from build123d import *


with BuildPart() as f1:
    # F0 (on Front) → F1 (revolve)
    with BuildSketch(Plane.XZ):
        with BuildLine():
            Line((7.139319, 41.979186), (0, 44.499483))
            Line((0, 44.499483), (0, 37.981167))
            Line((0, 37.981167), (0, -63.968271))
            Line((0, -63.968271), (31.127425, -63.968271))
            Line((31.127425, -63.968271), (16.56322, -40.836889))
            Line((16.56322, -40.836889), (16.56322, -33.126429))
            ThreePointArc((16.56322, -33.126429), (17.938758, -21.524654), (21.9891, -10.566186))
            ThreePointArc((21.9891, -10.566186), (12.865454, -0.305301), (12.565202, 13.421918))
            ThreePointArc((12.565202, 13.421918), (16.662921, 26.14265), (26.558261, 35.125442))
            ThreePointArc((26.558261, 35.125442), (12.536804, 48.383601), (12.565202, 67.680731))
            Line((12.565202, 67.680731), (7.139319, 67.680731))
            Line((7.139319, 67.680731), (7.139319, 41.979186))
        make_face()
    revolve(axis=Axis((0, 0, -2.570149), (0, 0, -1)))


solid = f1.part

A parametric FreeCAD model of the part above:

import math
import FreeCAD as App
import Part
import Sketcher
Q = App.Units.Quantity

doc = App.newDocument("Part")
body = doc.addObject("PartDesign::Body", "Body")

sketch1 = body.newObject("Sketcher::SketchObject", "Sketch")
sketch1.AttachmentSupport = (doc.getObject("XZ_Plane"), [""])
sketch1.MapMode = "FlatFace"
sketch1.addGeometry([
    Part.LineSegment(App.Vector(7, 42, 0), App.Vector(0, 44, 0)),
    Part.LineSegment(App.Vector(0, 44, 0), App.Vector(0, -64, 0)),
    Part.LineSegment(App.Vector(0, -64, 0), App.Vector(31, -64, 0)),
    Part.LineSegment(App.Vector(31, -64, 0), App.Vector(17, -41, 0)),
    Part.LineSegment(App.Vector(17, -41, 0), App.Vector(17, -33, 0)),
    Part.ArcOfCircle(Part.Circle(App.Vector(66, -33, 0), App.Vector(0, 0, 1), 50), math.radians(153), math.radians(180)),
    Part.ArcOfCircle(Part.Circle(App.Vector(31, 7, 0), App.Vector(0, 0, 1), 20), math.radians(161), math.radians(242)),
    Part.ArcOfCircle(Part.Circle(App.Vector(38, 12, 0), App.Vector(0, 0, 1), 26), math.radians(117), math.radians(177)),
    Part.ArcOfCircle(Part.Circle(App.Vector(35, 58, 0), App.Vector(0, 0, 1), 24), math.radians(157), math.radians(250)),
    Part.LineSegment(App.Vector(13, 68, 0), App.Vector(7, 68, 0)),
    Part.LineSegment(App.Vector(7, 68, 0), App.Vector(7, 42, 0)),
], False)
sketch1.addConstraint([
    Sketcher.Constraint("Coincident", 0, 2, 1, 1),
    Sketcher.Constraint("Coincident", 1, 2, 2, 1),
    Sketcher.Constraint("Coincident", 2, 2, 3, 1),
    Sketcher.Constraint("Coincident", 3, 2, 4, 1),
    Sketcher.Constraint("Tangent", 4, 2, 5, 2),
    Sketcher.Constraint("Coincident", 5, 1, 6, 2),
    Sketcher.Constraint("Coincident", 6, 1, 7, 2),
    Sketcher.Constraint("Coincident", 7, 1, 8, 2),
    Sketcher.Constraint("Coincident", 8, 1, 9, 1),
    Sketcher.Constraint("Coincident", 9, 2, 10, 1),
    Sketcher.Constraint("Coincident", 10, 2, 0, 1),
    Sketcher.Constraint("Vertical", 1),
    Sketcher.Constraint("Horizontal", 2),
    Sketcher.Constraint("Vertical", 4),
    Sketcher.Constraint("Horizontal", 9),
    Sketcher.Constraint("Vertical", 10),
    Sketcher.Constraint("PointOnObject", 0, 2, -2),
    Sketcher.Constraint("Vertical", 6, 1, 8, 1),
    Sketcher.Constraint("Radius", 7, Q("25.892169 mm")),
    Sketcher.Constraint("Radius", 5, Q("49.614507 mm")),
    Sketcher.Constraint("Radius", 6, Q("19.887074 mm")),
    Sketcher.Constraint("Radius", 8, Q("24.350134 mm")),
    Sketcher.Constraint("DistanceY", 4, 1, 4, 2, Q("7.71046 mm")),
    Sketcher.Constraint("DistanceX", -1, 1, 5, 1, Q("21.9891 mm")),
    Sketcher.Constraint("DistanceX", -1, 1, 6, 1, Q("12.565202 mm")),
    Sketcher.Constraint("DistanceX", 2, 2, 5, 3, Q("35.050302 mm")),
    Sketcher.Constraint("DistanceX", 2, 1, 2, 2, Q("31.127425 mm")),
    Sketcher.Constraint("DistanceX", 9, 2, 9, 1, Q("5.425883 mm")),
    Sketcher.Constraint("DistanceY", 1, 2, 1, 1, Q("108.467754 mm")),
    Sketcher.Constraint("DistanceY", 10, 2, 10, 1, Q("25.701545 mm")),
    Sketcher.Constraint("DistanceY", 5, 3, -1, 1, Q("33.126429 mm")),
    Sketcher.Constraint("DistanceX", -1, 1, 7, 3, Q("38.424232 mm")),
    Sketcher.Constraint("DistanceY", 1, 2, -1, 1, Q("63.968271 mm")),
    Sketcher.Constraint("DistanceY", -1, 1, 6, 1, Q("13.421918 mm")),
    Sketcher.Constraint("DistanceX", -1, 1, 7, 1, Q("26.558261 mm")),
    Sketcher.Constraint("DistanceY", -1, 1, 8, 1, Q("67.680731 mm")),
])
revolution = body.newObject("PartDesign::Revolution", "Revolution")
revolution.Profile = sketch1
revolution.ReferenceAxis = (sketch1, ["V_Axis"])
revolution.Angle = 360

doc.recompute()
